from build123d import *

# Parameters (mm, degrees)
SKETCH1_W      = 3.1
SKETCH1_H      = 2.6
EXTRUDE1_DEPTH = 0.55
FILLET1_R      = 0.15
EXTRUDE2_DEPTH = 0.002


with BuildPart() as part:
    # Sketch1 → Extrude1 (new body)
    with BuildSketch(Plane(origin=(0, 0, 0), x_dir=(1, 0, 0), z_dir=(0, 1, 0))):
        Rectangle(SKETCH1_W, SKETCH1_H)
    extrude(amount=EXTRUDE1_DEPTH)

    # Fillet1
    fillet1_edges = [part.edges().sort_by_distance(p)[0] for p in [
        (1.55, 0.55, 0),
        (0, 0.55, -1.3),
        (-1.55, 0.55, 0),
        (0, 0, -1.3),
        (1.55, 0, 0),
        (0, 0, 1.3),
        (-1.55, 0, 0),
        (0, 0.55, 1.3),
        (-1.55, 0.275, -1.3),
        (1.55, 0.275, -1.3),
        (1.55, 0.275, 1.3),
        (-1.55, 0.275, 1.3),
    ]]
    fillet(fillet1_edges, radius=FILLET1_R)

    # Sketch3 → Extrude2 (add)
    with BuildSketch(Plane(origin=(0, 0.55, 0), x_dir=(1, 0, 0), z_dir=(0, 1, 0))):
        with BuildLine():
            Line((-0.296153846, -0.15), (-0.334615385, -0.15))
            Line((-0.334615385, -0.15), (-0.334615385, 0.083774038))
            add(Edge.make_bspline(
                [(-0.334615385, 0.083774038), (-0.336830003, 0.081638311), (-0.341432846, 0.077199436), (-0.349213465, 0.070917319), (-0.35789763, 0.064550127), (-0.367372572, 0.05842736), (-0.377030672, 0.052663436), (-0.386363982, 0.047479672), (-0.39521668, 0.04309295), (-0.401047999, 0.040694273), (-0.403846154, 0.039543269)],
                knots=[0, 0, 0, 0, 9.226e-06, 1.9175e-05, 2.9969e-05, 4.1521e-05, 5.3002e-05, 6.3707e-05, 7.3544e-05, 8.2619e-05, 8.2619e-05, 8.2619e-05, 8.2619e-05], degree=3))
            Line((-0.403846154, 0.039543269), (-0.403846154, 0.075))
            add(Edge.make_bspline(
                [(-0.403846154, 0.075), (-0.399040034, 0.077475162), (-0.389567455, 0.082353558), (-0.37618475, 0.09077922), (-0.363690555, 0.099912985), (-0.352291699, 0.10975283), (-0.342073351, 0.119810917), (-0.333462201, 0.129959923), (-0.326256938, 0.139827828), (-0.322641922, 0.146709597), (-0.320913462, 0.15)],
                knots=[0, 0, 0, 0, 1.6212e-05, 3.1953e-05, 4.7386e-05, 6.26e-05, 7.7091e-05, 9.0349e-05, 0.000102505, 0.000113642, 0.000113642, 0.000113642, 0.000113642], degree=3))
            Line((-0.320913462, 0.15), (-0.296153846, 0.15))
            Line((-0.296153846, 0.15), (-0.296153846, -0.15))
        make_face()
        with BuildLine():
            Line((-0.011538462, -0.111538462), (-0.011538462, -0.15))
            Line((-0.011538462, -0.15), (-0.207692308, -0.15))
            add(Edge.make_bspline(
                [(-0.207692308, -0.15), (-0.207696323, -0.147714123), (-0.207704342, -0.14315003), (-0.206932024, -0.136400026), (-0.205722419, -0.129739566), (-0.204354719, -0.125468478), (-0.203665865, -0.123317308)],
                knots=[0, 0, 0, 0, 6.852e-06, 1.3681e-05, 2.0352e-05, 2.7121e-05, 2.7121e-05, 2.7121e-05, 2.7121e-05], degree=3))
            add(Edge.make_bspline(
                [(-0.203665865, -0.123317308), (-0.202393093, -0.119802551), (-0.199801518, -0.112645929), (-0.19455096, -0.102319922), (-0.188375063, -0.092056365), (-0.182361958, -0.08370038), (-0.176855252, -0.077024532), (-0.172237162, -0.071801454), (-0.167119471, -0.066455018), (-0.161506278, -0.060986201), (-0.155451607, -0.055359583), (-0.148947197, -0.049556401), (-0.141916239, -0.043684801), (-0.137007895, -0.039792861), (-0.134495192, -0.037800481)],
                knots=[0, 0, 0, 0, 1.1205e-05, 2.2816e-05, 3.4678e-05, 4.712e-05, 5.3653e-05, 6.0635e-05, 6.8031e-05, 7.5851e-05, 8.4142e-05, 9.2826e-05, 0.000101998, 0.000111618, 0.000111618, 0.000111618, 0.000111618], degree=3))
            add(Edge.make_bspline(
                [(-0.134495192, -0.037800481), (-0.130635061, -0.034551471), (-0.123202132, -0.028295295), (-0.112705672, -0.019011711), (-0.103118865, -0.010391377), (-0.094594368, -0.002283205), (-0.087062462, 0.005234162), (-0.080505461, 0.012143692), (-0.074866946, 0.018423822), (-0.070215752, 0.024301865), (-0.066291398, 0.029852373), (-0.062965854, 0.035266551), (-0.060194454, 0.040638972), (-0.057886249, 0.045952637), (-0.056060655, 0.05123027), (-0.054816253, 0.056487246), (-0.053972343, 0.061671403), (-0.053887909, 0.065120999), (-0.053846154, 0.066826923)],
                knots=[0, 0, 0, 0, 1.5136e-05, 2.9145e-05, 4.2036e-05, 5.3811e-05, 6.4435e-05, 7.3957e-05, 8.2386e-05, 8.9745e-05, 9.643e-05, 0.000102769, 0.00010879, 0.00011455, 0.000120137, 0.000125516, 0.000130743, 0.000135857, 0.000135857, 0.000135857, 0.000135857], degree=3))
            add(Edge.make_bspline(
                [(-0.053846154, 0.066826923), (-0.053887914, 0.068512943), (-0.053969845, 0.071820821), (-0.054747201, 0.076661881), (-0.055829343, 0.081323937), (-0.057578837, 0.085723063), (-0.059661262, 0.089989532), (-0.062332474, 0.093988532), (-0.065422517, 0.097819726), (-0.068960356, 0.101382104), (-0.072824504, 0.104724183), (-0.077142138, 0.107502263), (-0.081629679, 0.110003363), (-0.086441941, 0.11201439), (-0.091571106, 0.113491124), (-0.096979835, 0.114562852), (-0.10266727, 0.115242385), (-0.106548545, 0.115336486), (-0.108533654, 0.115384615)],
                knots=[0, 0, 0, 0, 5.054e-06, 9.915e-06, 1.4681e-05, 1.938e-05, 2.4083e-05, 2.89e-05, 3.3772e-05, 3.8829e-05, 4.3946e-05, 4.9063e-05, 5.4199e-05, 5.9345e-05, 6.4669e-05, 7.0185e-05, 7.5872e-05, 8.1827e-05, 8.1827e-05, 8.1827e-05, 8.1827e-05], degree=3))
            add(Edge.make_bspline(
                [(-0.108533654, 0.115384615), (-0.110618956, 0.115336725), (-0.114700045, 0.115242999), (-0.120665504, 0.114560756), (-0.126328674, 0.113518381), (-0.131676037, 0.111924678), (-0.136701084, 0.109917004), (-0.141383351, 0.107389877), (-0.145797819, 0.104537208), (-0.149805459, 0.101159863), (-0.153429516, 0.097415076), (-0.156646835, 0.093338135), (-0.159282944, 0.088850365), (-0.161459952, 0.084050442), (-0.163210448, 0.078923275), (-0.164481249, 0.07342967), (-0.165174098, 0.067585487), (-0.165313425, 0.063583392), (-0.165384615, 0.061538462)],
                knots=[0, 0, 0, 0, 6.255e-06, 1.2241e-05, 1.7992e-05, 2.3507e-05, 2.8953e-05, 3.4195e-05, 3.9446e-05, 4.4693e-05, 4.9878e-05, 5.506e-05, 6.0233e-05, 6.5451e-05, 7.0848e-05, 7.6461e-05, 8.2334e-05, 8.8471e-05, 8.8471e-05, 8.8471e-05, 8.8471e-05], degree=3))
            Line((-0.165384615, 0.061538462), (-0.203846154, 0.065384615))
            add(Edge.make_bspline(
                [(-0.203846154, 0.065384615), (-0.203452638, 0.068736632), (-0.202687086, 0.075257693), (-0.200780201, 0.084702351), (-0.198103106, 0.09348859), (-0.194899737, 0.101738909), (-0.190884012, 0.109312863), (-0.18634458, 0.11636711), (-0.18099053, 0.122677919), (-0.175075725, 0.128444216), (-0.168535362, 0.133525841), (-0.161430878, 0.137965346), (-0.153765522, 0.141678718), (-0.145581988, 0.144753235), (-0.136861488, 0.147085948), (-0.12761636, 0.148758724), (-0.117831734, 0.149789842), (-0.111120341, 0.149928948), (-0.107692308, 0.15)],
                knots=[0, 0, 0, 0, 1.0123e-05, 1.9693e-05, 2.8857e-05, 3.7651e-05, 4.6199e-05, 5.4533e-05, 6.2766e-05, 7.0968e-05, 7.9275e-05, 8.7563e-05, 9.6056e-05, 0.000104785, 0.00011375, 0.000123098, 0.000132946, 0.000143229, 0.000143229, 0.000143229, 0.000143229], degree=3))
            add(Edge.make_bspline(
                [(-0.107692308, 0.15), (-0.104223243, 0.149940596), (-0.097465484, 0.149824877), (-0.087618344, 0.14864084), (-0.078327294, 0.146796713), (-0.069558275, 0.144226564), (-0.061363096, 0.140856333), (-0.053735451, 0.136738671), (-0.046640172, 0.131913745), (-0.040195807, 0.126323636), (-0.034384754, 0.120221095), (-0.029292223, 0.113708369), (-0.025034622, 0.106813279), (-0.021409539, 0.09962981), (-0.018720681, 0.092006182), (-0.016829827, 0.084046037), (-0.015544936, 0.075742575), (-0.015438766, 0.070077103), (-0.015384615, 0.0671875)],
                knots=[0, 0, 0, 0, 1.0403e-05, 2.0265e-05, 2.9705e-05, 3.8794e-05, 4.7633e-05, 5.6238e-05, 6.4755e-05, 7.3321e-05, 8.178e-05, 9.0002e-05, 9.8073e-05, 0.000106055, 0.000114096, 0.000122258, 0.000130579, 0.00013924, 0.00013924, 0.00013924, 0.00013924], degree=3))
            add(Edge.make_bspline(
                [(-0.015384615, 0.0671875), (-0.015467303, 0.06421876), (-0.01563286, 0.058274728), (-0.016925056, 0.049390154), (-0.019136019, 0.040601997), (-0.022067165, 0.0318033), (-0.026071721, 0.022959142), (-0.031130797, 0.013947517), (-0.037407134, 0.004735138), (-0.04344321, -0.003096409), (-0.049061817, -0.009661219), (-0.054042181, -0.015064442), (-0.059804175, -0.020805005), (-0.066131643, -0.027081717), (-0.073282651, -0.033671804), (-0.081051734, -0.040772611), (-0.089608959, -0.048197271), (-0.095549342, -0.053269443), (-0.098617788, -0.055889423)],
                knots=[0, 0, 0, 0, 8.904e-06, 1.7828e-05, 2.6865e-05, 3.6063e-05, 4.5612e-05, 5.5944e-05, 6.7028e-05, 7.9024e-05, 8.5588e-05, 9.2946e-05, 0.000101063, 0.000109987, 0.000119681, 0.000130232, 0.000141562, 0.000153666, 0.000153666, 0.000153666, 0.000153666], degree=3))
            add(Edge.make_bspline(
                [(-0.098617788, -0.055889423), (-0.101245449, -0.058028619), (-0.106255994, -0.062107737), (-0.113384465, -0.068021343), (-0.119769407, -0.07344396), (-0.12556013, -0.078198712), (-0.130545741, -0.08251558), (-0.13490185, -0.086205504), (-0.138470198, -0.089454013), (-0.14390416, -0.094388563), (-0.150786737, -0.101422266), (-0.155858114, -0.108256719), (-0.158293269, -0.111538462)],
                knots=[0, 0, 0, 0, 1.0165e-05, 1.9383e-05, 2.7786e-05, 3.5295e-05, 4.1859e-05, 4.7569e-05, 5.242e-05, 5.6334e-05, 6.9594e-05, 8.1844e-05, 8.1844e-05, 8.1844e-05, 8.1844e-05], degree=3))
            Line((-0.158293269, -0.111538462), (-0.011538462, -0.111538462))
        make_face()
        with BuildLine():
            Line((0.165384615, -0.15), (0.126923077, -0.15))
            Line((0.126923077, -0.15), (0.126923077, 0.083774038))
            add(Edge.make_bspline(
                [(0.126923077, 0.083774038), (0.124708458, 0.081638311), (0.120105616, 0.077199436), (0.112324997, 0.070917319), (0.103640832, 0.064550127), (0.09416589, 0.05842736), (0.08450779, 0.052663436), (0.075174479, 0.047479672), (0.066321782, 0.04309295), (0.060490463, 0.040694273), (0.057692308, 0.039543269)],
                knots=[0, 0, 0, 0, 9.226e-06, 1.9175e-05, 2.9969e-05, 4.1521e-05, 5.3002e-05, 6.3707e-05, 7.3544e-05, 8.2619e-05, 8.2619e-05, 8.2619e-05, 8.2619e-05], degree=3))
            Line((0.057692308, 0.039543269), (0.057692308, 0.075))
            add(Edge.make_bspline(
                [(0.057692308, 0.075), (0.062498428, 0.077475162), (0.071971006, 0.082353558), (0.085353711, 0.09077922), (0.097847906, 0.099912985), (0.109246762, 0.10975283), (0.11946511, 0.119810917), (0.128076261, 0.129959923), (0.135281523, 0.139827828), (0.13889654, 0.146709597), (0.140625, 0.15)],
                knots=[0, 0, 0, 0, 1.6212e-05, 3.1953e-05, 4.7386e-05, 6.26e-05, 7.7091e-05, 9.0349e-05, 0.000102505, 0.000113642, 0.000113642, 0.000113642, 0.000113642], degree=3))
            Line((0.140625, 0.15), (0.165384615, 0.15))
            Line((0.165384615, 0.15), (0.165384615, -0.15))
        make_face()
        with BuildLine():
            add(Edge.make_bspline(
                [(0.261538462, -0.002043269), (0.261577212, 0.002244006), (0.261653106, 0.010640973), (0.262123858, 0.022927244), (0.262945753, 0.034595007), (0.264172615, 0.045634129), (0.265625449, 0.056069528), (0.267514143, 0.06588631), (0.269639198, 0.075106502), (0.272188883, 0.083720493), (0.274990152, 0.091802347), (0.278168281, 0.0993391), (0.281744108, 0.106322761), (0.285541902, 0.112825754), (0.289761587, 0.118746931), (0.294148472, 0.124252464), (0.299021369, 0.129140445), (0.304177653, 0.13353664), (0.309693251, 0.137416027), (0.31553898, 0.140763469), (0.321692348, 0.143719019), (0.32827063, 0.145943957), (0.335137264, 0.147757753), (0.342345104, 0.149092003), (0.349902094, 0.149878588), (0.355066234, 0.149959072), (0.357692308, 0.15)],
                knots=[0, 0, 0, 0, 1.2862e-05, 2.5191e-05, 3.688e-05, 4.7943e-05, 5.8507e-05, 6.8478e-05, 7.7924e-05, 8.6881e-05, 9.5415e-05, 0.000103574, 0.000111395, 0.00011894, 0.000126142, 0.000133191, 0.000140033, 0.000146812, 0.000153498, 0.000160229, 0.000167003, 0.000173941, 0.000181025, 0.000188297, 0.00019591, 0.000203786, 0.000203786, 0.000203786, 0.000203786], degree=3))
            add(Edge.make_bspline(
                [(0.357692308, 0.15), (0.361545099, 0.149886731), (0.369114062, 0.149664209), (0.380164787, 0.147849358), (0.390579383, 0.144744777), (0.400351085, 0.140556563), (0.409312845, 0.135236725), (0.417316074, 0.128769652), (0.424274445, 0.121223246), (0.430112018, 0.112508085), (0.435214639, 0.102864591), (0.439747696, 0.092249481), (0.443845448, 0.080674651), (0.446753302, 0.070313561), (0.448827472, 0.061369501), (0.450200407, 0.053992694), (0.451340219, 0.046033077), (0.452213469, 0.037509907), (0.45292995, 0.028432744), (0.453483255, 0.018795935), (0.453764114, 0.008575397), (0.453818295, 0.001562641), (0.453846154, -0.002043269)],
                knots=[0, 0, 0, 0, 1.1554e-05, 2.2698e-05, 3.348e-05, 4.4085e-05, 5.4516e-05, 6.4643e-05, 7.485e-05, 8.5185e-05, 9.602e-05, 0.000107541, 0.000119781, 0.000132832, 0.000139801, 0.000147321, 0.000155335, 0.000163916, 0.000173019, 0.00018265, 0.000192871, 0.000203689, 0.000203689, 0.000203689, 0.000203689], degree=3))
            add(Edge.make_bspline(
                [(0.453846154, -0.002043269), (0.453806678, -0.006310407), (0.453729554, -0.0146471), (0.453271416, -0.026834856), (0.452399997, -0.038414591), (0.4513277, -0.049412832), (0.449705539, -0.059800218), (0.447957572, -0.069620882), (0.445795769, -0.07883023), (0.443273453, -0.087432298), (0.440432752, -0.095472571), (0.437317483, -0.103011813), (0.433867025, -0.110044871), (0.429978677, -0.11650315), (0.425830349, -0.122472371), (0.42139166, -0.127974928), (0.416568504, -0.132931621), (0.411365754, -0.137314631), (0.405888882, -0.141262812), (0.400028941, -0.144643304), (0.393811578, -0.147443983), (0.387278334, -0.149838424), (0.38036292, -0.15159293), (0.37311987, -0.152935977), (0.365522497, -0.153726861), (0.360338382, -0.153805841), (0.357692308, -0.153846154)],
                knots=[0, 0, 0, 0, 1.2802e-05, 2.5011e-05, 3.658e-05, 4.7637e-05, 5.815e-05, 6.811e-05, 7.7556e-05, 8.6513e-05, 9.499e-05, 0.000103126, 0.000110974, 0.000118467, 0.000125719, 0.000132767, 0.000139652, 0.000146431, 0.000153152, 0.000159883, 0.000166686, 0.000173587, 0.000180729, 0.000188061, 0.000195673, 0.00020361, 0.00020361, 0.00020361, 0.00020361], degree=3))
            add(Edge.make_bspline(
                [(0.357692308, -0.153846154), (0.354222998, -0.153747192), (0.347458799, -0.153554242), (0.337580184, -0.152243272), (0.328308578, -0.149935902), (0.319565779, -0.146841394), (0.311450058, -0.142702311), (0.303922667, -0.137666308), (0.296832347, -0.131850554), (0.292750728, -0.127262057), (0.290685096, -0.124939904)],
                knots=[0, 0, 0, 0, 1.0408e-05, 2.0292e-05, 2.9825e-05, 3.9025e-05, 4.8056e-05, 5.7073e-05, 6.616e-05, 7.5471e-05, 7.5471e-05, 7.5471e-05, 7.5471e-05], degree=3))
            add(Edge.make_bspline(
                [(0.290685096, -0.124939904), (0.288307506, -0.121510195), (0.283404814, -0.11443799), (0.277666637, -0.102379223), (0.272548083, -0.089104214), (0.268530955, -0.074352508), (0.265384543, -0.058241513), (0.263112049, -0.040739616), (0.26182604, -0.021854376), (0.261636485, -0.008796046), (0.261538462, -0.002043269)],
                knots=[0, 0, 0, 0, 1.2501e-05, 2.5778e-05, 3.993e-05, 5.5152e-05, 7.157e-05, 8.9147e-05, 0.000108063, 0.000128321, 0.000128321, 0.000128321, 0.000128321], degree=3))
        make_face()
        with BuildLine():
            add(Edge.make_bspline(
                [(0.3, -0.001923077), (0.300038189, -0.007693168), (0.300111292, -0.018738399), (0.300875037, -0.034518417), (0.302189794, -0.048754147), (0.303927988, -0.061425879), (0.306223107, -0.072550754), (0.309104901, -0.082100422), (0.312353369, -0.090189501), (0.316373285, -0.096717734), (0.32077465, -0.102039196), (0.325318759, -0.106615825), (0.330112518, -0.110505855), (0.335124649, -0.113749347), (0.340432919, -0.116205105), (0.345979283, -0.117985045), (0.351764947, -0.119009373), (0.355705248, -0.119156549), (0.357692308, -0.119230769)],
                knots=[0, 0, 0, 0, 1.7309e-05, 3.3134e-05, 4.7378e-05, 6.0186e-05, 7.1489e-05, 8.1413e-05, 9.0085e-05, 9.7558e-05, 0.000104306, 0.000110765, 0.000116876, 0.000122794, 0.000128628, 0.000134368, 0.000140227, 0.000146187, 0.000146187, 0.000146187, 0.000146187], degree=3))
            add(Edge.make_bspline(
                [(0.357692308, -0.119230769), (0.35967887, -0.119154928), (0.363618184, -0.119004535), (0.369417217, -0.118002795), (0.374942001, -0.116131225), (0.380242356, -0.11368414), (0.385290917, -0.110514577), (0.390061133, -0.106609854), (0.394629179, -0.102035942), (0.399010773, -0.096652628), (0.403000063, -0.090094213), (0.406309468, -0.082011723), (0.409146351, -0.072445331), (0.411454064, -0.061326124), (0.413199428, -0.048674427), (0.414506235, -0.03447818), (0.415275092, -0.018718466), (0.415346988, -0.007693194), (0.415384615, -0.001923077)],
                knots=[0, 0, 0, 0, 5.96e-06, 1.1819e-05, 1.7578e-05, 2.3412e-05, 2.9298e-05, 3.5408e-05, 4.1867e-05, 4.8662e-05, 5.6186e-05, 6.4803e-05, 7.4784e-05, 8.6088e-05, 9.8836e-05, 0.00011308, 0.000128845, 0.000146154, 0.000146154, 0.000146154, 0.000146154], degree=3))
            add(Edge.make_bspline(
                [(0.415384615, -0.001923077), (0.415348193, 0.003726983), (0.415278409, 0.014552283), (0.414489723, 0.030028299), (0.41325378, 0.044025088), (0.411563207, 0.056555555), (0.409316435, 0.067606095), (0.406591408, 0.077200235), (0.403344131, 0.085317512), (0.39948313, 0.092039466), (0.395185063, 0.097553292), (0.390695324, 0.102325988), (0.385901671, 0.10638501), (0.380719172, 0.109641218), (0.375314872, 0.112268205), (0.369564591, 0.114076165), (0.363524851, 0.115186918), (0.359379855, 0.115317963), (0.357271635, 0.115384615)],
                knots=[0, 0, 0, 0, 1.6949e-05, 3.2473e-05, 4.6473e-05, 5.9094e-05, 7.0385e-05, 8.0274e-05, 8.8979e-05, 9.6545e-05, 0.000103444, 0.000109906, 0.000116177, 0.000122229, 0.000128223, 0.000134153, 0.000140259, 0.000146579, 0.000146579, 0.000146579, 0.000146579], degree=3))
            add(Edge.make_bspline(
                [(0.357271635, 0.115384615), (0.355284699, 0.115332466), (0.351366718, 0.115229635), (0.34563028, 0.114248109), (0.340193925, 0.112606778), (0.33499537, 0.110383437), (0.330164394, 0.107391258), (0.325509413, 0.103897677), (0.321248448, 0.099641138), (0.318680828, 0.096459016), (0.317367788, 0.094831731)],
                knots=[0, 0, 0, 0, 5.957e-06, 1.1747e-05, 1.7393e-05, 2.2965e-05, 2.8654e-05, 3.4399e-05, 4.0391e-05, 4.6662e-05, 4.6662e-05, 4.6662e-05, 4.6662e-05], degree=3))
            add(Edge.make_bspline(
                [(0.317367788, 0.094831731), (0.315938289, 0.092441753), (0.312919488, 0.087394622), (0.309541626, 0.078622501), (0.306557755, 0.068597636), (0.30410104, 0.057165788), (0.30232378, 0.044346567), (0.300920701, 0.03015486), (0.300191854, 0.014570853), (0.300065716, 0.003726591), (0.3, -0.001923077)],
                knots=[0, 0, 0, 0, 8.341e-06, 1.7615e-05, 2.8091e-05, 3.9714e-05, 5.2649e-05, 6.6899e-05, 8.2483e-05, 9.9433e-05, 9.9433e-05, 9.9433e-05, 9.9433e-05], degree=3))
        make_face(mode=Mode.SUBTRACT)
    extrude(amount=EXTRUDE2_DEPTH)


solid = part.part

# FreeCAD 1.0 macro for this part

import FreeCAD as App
import Part
import Sketcher
from FreeCAD import Vector

doc = App.newDocument("Part")
body = doc.addObject("PartDesign::Body", "Body")

sketch1 = body.newObject("Sketcher::SketchObject", "Sketch")
sketch1.AttachmentSupport = (doc.getObject("XZ_Plane"), [""])
sketch1.MapMode = "FlatFace"
sketch1.addGeometry(Part.LineSegment(Vector(-1.6, -1.3, 0), Vector(-1.6, 1.3, 0)), False)
sketch1.addGeometry(Part.LineSegment(Vector(-1.6, 1.3, 0), Vector(1.6, 1.3, 0)), False)
sketch1.addGeometry(Part.LineSegment(Vector(1.6, 1.3, 0), Vector(1.6, -1.3, 0)), False)
sketch1.addGeometry(Part.LineSegment(Vector(1.6, -1.3, 0), Vector(-1.6, -1.3, 0)), False)
sketch1.addConstraint(Sketcher.Constraint("Coincident", 0, 2, 1, 1))
sketch1.addConstraint(Sketcher.Constraint("Coincident", 1, 2, 2, 1))
sketch1.addConstraint(Sketcher.Constraint("Coincident", 2, 2, 3, 1))
sketch1.addConstraint(Sketcher.Constraint("Coincident", 3, 2, 0, 1))
sketch1.addConstraint(Sketcher.Constraint("Vertical", 0))
sketch1.addConstraint(Sketcher.Constraint("Horizontal", 1))
sketch1.addConstraint(Sketcher.Constraint("Vertical", 2))
sketch1.addConstraint(Sketcher.Constraint("Horizontal", 3))
sketch1.addConstraint(Sketcher.Constraint("Symmetric", 0, 2, 2, 2, -1, 1))
sketch1.addConstraint(Sketcher.Constraint("DistanceX", 1, 1, 1, 2, 3.1))
sketch1.addConstraint(Sketcher.Constraint("DistanceY", 0, 1, 0, 2, 2.6))
pad1 = body.newObject("PartDesign::Pad", "Pad")
pad1.Profile = sketch1
pad1.Length = 0.55
pad1.Reversed = True
doc.recompute()

fillet = body.newObject("PartDesign::Fillet", "Fillet")
fillet.Base = (pad1, ["Edge1"])
fillet.UseAllEdges = True
fillet.Radius = 0.15

sketch2 = body.newObject("Sketcher::SketchObject", "Sketch001")
sketch2.AttachmentSupport = (doc.getObject("XZ_Plane"), [""])
sketch2.MapMode = "FlatFace"
sketch2.AttachmentOffset = App.Placement(Vector(0, 0, -0.55), App.Rotation())
sketch2.addGeometry(Part.LineSegment(Vector(-0.334615, 0.15, 0), Vector(-0.296154, 0.15, 0)), False)
sketch2.addGeometry(Part.LineSegment(Vector(-0.296154, 0.15, 0), Vector(-0.296154, -0.15, 0)), False)
sketch2.addGeometry(Part.LineSegment(Vector(-0.296154, -0.15, 0), Vector(-0.320913, -0.15, 0)), False)
sketch2.addGeometry(Part.BSplineCurve([Vector(-0.403846, -0.075, 0), Vector(-0.39904, -0.077475, 0), Vector(-0.389567, -0.082354, 0), Vector(-0.376185, -0.090779, 0), Vector(-0.363691, -0.099913, 0), Vector(-0.352292, -0.109753, 0), Vector(-0.342073, -0.119811, 0), Vector(-0.333462, -0.12996, 0), Vector(-0.326257, -0.139828, 0), Vector(-0.322642, -0.14671, 0), Vector(-0.320913, -0.15, 0)], [4, 1, 1, 1, 1, 1, 1, 1, 4], [0, 0.000016212, 0.000031953, 0.000047386, 0.0000626, 0.000077091, 0.000090349, 0.000102505, 0.000113642], False, 3, [1, 1, 1, 1, 1, 1, 1, 1, 1, 1, 1], False), False)
sketch2.addGeometry(Part.LineSegment(Vector(-0.403846, -0.075, 0), Vector(-0.403846, -0.039543, 0)), False)
sketch2.addGeometry(Part.BSplineCurve([Vector(-0.334615, -0.083774, 0), Vector(-0.33683, -0.081638, 0), Vector(-0.341433, -0.077199, 0), Vector(-0.349213, -0.070917, 0), Vector(-0.357898, -0.06455, 0), Vector(-0.367373, -0.058427, 0), Vector(-0.377031, -0.052663, 0), Vector(-0.386364, -0.04748, 0), Vector(-0.395217, -0.043093, 0), Vector(-0.401048, -0.040694, 0), Vector(-0.403846, -0.039543, 0)], [4, 1, 1, 1, 1, 1, 1, 1, 4], [0, 0.000009226, 0.000019175, 0.000029969, 0.000041521, 0.000053002, 0.000063707, 0.000073544, 0.000082619], False, 3, [1, 1, 1, 1, 1, 1, 1, 1, 1, 1, 1], False), False)
sketch2.addGeometry(Part.LineSegment(Vector(-0.334615, -0.083774, 0), Vector(-0.334615, 0.15, 0)), False)
sketch2.addGeometry(Part.LineSegment(Vector(-0.011538, 0.15, 0), Vector(-0.011538, 0.111538, 0)), False)
sketch2.addGeometry(Part.LineSegment(Vector(-0.011538, 0.111538, 0), Vector(-0.158293, 0.111538, 0)), False)
sketch2.addGeometry(Part.BSplineCurve([Vector(-0.098618, 0.055889, 0), Vector(-0.101245, 0.058029, 0), Vector(-0.106256, 0.062108, 0), Vector(-0.113384, 0.068021, 0), Vector(-0.119769, 0.073444, 0), Vector(-0.12556, 0.078199, 0), Vector(-0.130546, 0.082516, 0), Vector(-0.134902, 0.086206, 0), Vector(-0.13847, 0.089454, 0), Vector(-0.143904, 0.094389, 0), Vector(-0.150787, 0.101422, 0), Vector(-0.155858, 0.108257, 0), Vector(-0.158293, 0.111538, 0)], [4, 1, 1, 1, 1, 1, 1, 1, 1, 1, 4], [0, 0.000010165, 0.000019383, 0.000027786, 0.000035295, 0.000041859, 0.000047569, 0.00005242, 0.000056334, 0.000069594, 0.000081844], False, 3, [1, 1, 1, 1, 1, 1, 1, 1, 1, 1, 1, 1, 1], False), False)
sketch2.addGeometry(Part.BSplineCurve([Vector(-0.015385, -0.067187, 0), Vector(-0.015467, -0.064219, 0), Vector(-0.015633, -0.058275, 0), Vector(-0.016925, -0.04939, 0), Vector(-0.019136, -0.040602, 0), Vector(-0.022067, -0.031803, 0), Vector(-0.026072, -0.022959, 0), Vector(-0.031131, -0.013948, 0), Vector(-0.037407, -0.004735, 0), Vector(-0.043443, 0.003096, 0), Vector(-0.049062, 0.009661, 0), Vector(-0.054042, 0.015064, 0), Vector(-0.059804, 0.020805, 0), Vector(-0.066132, 0.027082, 0), Vector(-0.073283, 0.033672, 0), Vector(-0.081052, 0.040773, 0), Vector(-0.089609, 0.048197, 0), Vector(-0.095549, 0.053269, 0), Vector(-0.098618, 0.055889, 0)], [4, 1, 1, 1, 1, 1, 1, 1, 1, 1, 1, 1, 1, 1, 1, 1, 4], [0, 0.000008904, 0.000017828, 0.000026865, 0.000036063, 0.000045612, 0.000055944, 0.000067028, 0.000079024, 0.000085588, 0.000092946, 0.000101063, 0.000109987, 0.000119681, 0.000130232, 0.000141562, 0.000153666], False, 3, [1, 1, 1, 1, 1, 1, 1, 1, 1, 1, 1, 1, 1, 1, 1, 1, 1, 1, 1], False), False)
sketch2.addGeometry(Part.BSplineCurve([Vector(-0.107692, -0.15, 0), Vector(-0.104223, -0.149941, 0), Vector(-0.097465, -0.149825, 0), Vector(-0.087618, -0.148641, 0), Vector(-0.078327, -0.146797, 0), Vector(-0.069558, -0.144227, 0), Vector(-0.061363, -0.140856, 0), Vector(-0.053735, -0.136739, 0), Vector(-0.04664, -0.131914, 0), Vector(-0.040196, -0.126324, 0), Vector(-0.034385, -0.120221, 0), Vector(-0.029292, -0.113708, 0), Vector(-0.025035, -0.106813, 0), Vector(-0.02141, -0.09963, 0), Vector(-0.018721, -0.092006, 0), Vector(-0.01683, -0.084046, 0), Vector(-0.015545, -0.075743, 0), Vector(-0.015439, -0.070077, 0), Vector(-0.015385, -0.067187, 0)], [4, 1, 1, 1, 1, 1, 1, 1, 1, 1, 1, 1, 1, 1, 1, 1, 4], [0, 0.000010403, 0.000020265, 0.000029705, 0.000038794, 0.000047633, 0.000056238, 0.000064755, 0.000073321, 0.00008178, 0.000090002, 0.000098073, 0.000106055, 0.000114096, 0.000122258, 0.000130579, 0.00013924], False, 3, [1, 1, 1, 1, 1, 1, 1, 1, 1, 1, 1, 1, 1, 1, 1, 1, 1, 1, 1], False), False)
sketch2.addGeometry(Part.BSplineCurve([Vector(-0.203846, -0.065385, 0), Vector(-0.203453, -0.068737, 0), Vector(-0.202687, -0.075258, 0), Vector(-0.20078, -0.084702, 0), Vector(-0.198103, -0.093489, 0), Vector(-0.1949, -0.101739, 0), Vector(-0.190884, -0.109313, 0), Vector(-0.186345, -0.116367, 0), Vector(-0.180991, -0.122678, 0), Vector(-0.175076, -0.128444, 0), Vector(-0.168535, -0.133526, 0), Vector(-0.161431, -0.137965, 0), Vector(-0.153766, -0.141679, 0), Vector(-0.145582, -0.144753, 0), Vector(-0.136861, -0.147086, 0), Vector(-0.127616, -0.148759, 0), Vector(-0.117832, -0.14979, 0), Vector(-0.11112, -0.149929, 0), Vector(-0.107692, -0.15, 0)], [4, 1, 1, 1, 1, 1, 1, 1, 1, 1, 1, 1, 1, 1, 1, 1, 4], [0, 0.000010123, 0.000019693, 0.000028857, 0.000037651, 0.000046199, 0.000054533, 0.000062766, 0.000070968, 0.000079275, 0.000087563, 0.000096056, 0.000104785, 0.00011375, 0.000123098, 0.000132946, 0.000143229], False, 3, [1, 1, 1, 1, 1, 1, 1, 1, 1, 1, 1, 1, 1, 1, 1, 1, 1, 1, 1], False), False)
sketch2.addGeometry(Part.LineSegment(Vector(-0.203846, -0.065385, 0), Vector(-0.165385, -0.061538, 0)), False)
sketch2.addGeometry(Part.BSplineCurve([Vector(-0.108534, -0.115385, 0), Vector(-0.110619, -0.115337, 0), Vector(-0.1147, -0.115243, 0), Vector(-0.120666, -0.114561, 0), Vector(-0.126329, -0.113518, 0), Vector(-0.131676, -0.111925, 0), Vector(-0.136701, -0.109917, 0), Vector(-0.141383, -0.10739, 0), Vector(-0.145798, -0.104537, 0), Vector(-0.149805, -0.10116, 0), Vector(-0.15343, -0.097415, 0), Vector(-0.156647, -0.093338, 0), Vector(-0.159283, -0.08885, 0), Vector(-0.16146, -0.08405, 0), Vector(-0.16321, -0.078923, 0), Vector(-0.164481, -0.07343, 0), Vector(-0.165174, -0.067585, 0), Vector(-0.165313, -0.063583, 0), Vector(-0.165385, -0.061538, 0)], [4, 1, 1, 1, 1, 1, 1, 1, 1, 1, 1, 1, 1, 1, 1, 1, 4], [0, 0.000006255, 0.000012241, 0.000017992, 0.000023507, 0.000028953, 0.000034195, 0.000039446, 0.000044693, 0.000049878, 0.00005506, 0.000060233, 0.000065451, 0.000070848, 0.000076461, 0.000082334, 0.000088471], False, 3, [1, 1, 1, 1, 1, 1, 1, 1, 1, 1, 1, 1, 1, 1, 1, 1, 1, 1, 1], False), False)
sketch2.addGeometry(Part.BSplineCurve([Vector(-0.053846, -0.066827, 0), Vector(-0.053888, -0.068513, 0), Vector(-0.05397, -0.071821, 0), Vector(-0.054747, -0.076662, 0), Vector(-0.055829, -0.081324, 0), Vector(-0.057579, -0.085723, 0), Vector(-0.059661, -0.08999, 0), Vector(-0.062332, -0.093989, 0), Vector(-0.065423, -0.09782, 0), Vector(-0.06896, -0.101382, 0), Vector(-0.072825, -0.104724, 0), Vector(-0.077142, -0.107502, 0), Vector(-0.08163, -0.110003, 0), Vector(-0.086442, -0.112014, 0), Vector(-0.091571, -0.113491, 0), Vector(-0.09698, -0.114563, 0), Vector(-0.102667, -0.115242, 0), Vector(-0.106549, -0.115336, 0), Vector(-0.108534, -0.115385, 0)], [4, 1, 1, 1, 1, 1, 1, 1, 1, 1, 1, 1, 1, 1, 1, 1, 4], [0, 0.000005054, 0.000009915, 0.000014681, 0.00001938, 0.000024083, 0.0000289, 0.000033772, 0.000038829, 0.000043946, 0.000049063, 0.000054199, 0.000059345, 0.000064669, 0.000070185, 0.000075872, 0.000081827], False, 3, [1, 1, 1, 1, 1, 1, 1, 1, 1, 1, 1, 1, 1, 1, 1, 1, 1, 1, 1], False), False)
sketch2.addGeometry(Part.BSplineCurve([Vector(-0.134495, 0.0378, 0), Vector(-0.130635, 0.034551, 0), Vector(-0.123202, 0.028295, 0), Vector(-0.112706, 0.019012, 0), Vector(-0.103119, 0.010391, 0), Vector(-0.094594, 0.002283, 0), Vector(-0.087062, -0.005234, 0), Vector(-0.080505, -0.012144, 0), Vector(-0.074867, -0.018424, 0), Vector(-0.070216, -0.024302, 0), Vector(-0.066291, -0.029852, 0), Vector(-0.062966, -0.035267, 0), Vector(-0.060194, -0.040639, 0), Vector(-0.057886, -0.045953, 0), Vector(-0.056061, -0.05123, 0), Vector(-0.054816, -0.056487, 0), Vector(-0.053972, -0.061671, 0), Vector(-0.053888, -0.065121, 0), Vector(-0.053846, -0.066827, 0)], [4, 1, 1, 1, 1, 1, 1, 1, 1, 1, 1, 1, 1, 1, 1, 1, 4], [0, 0.000015136, 0.000029145, 0.000042036, 0.000053811, 0.000064435, 0.000073957, 0.000082386, 0.000089745, 0.00009643, 0.000102769, 0.00010879, 0.00011455, 0.000120137, 0.000125516, 0.000130743, 0.000135857], False, 3, [1, 1, 1, 1, 1, 1, 1, 1, 1, 1, 1, 1, 1, 1, 1, 1, 1, 1, 1], False), False)
sketch2.addGeometry(Part.BSplineCurve([Vector(-0.203666, 0.123317, 0), Vector(-0.202393, 0.119803, 0), Vector(-0.199802, 0.112646, 0), Vector(-0.194551, 0.10232, 0), Vector(-0.188375, 0.092056, 0), Vector(-0.182362, 0.0837, 0), Vector(-0.176855, 0.077025, 0), Vector(-0.172237, 0.071801, 0), Vector(-0.167119, 0.066455, 0), Vector(-0.161506, 0.060986, 0), Vector(-0.155452, 0.05536, 0), Vector(-0.148947, 0.049556, 0), Vector(-0.141916, 0.043685, 0), Vector(-0.137008, 0.039793, 0), Vector(-0.134495, 0.0378, 0)], [4, 1, 1, 1, 1, 1, 1, 1, 1, 1, 1, 1, 4], [0, 0.000011205, 0.000022816, 0.000034678, 0.00004712, 0.000053653, 0.000060635, 0.000068031, 0.000075851, 0.000084142, 0.000092826, 0.000101998, 0.000111618], False, 3, [1, 1, 1, 1, 1, 1, 1, 1, 1, 1, 1, 1, 1, 1, 1], False), False)
sketch2.addGeometry(Part.BSplineCurve([Vector(-0.207692, 0.15, 0), Vector(-0.207696, 0.147714, 0), Vector(-0.207704, 0.14315, 0), Vector(-0.206932, 0.1364, 0), Vector(-0.205722, 0.12974, 0), Vector(-0.204355, 0.125468, 0), Vector(-0.203666, 0.123317, 0)], [4, 1, 1, 1, 4], [0, 0.000006852, 0.000013681, 0.000020352, 0.000027121], False, 3, [1, 1, 1, 1, 1, 1, 1], False), False)
sketch2.addGeometry(Part.LineSegment(Vector(-0.207692, 0.15, 0), Vector(-0.011538, 0.15, 0)), False)
sketch2.addGeometry(Part.LineSegment(Vector(0.126923, 0.15, 0), Vector(0.165385, 0.15, 0)), False)
sketch2.addGeometry(Part.LineSegment(Vector(0.165385, 0.15, 0), Vector(0.165385, -0.15, 0)), False)
sketch2.addGeometry(Part.LineSegment(Vector(0.165385, -0.15, 0), Vector(0.140625, -0.15, 0)), False)
sketch2.addGeometry(Part.BSplineCurve([Vector(0.057692, -0.075, 0), Vector(0.062498, -0.077475, 0), Vector(0.071971, -0.082354, 0), Vector(0.085354, -0.090779, 0), Vector(0.097848, -0.099913, 0), Vector(0.109247, -0.109753, 0), Vector(0.119465, -0.119811, 0), Vector(0.128076, -0.12996, 0), Vector(0.135282, -0.139828, 0), Vector(0.138897, -0.14671, 0), Vector(0.140625, -0.15, 0)], [4, 1, 1, 1, 1, 1, 1, 1, 4], [0, 0.000016212, 0.000031953, 0.000047386, 0.0000626, 0.000077091, 0.000090349, 0.000102505, 0.000113642], False, 3, [1, 1, 1, 1, 1, 1, 1, 1, 1, 1, 1], False), False)
sketch2.addGeometry(Part.LineSegment(Vector(0.057692, -0.075, 0), Vector(0.057692, -0.039543, 0)), False)
sketch2.addGeometry(Part.BSplineCurve([Vector(0.126923, -0.083774, 0), Vector(0.124708, -0.081638, 0), Vector(0.120106, -0.077199, 0), Vector(0.112325, -0.070917, 0), Vector(0.103641, -0.06455, 0), Vector(0.094166, -0.058427, 0), Vector(0.084508, -0.052663, 0), Vector(0.075174, -0.04748, 0), Vector(0.066322, -0.043093, 0), Vector(0.06049, -0.040694, 0), Vector(0.057692, -0.039543, 0)], [4, 1, 1, 1, 1, 1, 1, 1, 4], [0, 0.000009226, 0.000019175, 0.000029969, 0.000041521, 0.000053002, 0.000063707, 0.000073544, 0.000082619], False, 3, [1, 1, 1, 1, 1, 1, 1, 1, 1, 1, 1], False), False)
sketch2.addGeometry(Part.LineSegment(Vector(0.126923, -0.083774, 0), Vector(0.126923, 0.15, 0)), False)
sketch2.addGeometry(Part.BSplineCurve([Vector(0.261538, 0.002043, 0), Vector(0.261577, -0.002244, 0), Vector(0.261653, -0.010641, 0), Vector(0.262124, -0.022927, 0), Vector(0.262946, -0.034595, 0), Vector(0.264173, -0.045634, 0), Vector(0.265625, -0.05607, 0), Vector(0.267514, -0.065886, 0), Vector(0.269639, -0.075107, 0), Vector(0.272189, -0.08372, 0), Vector(0.27499, -0.091802, 0), Vector(0.278168, -0.099339, 0), Vector(0.281744, -0.106323, 0), Vector(0.285542, -0.112826, 0), Vector(0.289762, -0.118747, 0), Vector(0.294148, -0.124252, 0), Vector(0.299021, -0.12914, 0), Vector(0.304178, -0.133537, 0), Vector(0.309693, -0.137416, 0), Vector(0.315539, -0.140763, 0), Vector(0.321692, -0.143719, 0), Vector(0.328271, -0.145944, 0), Vector(0.335137, -0.147758, 0), Vector(0.342345, -0.149092, 0), Vector(0.349902, -0.149879, 0), Vector(0.355066, -0.149959, 0), Vector(0.357692, -0.15, 0)], [4, 1, 1, 1, 1, 1, 1, 1, 1, 1, 1, 1, 1, 1, 1, 1, 1, 1, 1, 1, 1, 1, 1, 1, 4], [0, 0.000012862, 0.000025191, 0.00003688, 0.000047943, 0.000058507, 0.000068478, 0.000077924, 0.000086881, 0.000095415, 0.000103574, 0.000111395, 0.00011894, 0.000126142, 0.000133191, 0.000140033, 0.000146812, 0.000153498, 0.000160229, 0.000167003, 0.000173941, 0.000181025, 0.000188297, 0.00019591, 0.000203786], False, 3, [1, 1, 1, 1, 1, 1, 1, 1, 1, 1, 1, 1, 1, 1, 1, 1, 1, 1, 1, 1, 1, 1, 1, 1, 1, 1, 1], False), False)
sketch2.addGeometry(Part.BSplineCurve([Vector(0.290685, 0.12494, 0), Vector(0.288308, 0.12151, 0), Vector(0.283405, 0.114438, 0), Vector(0.277667, 0.102379, 0), Vector(0.272548, 0.089104, 0), Vector(0.268531, 0.074353, 0), Vector(0.265385, 0.058242, 0), Vector(0.263112, 0.04074, 0), Vector(0.261826, 0.021854, 0), Vector(0.261636, 0.008796, 0), Vector(0.261538, 0.002043, 0)], [4, 1, 1, 1, 1, 1, 1, 1, 4], [0, 0.000012501, 0.000025778, 0.00003993, 0.000055152, 0.00007157, 0.000089147, 0.000108063, 0.000128321], False, 3, [1, 1, 1, 1, 1, 1, 1, 1, 1, 1, 1], False), False)
sketch2.addGeometry(Part.BSplineCurve([Vector(0.357692, 0.153846, 0), Vector(0.354223, 0.153747, 0), Vector(0.347459, 0.153554, 0), Vector(0.33758, 0.152243, 0), Vector(0.328309, 0.149936, 0), Vector(0.319566, 0.146841, 0), Vector(0.31145, 0.142702, 0), Vector(0.303923, 0.137666, 0), Vector(0.296832, 0.131851, 0), Vector(0.292751, 0.127262, 0), Vector(0.290685, 0.12494, 0)], [4, 1, 1, 1, 1, 1, 1, 1, 4], [0, 0.000010408, 0.000020292, 0.000029825, 0.000039025, 0.000048056, 0.000057073, 0.00006616, 0.000075471], False, 3, [1, 1, 1, 1, 1, 1, 1, 1, 1, 1, 1], False), False)
sketch2.addGeometry(Part.BSplineCurve([Vector(0.453846, 0.002043, 0), Vector(0.453807, 0.00631, 0), Vector(0.45373, 0.014647, 0), Vector(0.453271, 0.026835, 0), Vector(0.4524, 0.038415, 0), Vector(0.451328, 0.049413, 0), Vector(0.449706, 0.0598, 0), Vector(0.447958, 0.069621, 0), Vector(0.445796, 0.07883, 0), Vector(0.443273, 0.087432, 0), Vector(0.440433, 0.095473, 0), Vector(0.437317, 0.103012, 0), Vector(0.433867, 0.110045, 0), Vector(0.429979, 0.116503, 0), Vector(0.42583, 0.122472, 0), Vector(0.421392, 0.127975, 0), Vector(0.416569, 0.132932, 0), Vector(0.411366, 0.137315, 0), Vector(0.405889, 0.141263, 0), Vector(0.400029, 0.144643, 0), Vector(0.393812, 0.147444, 0), Vector(0.387278, 0.149838, 0), Vector(0.380363, 0.151593, 0), Vector(0.37312, 0.152936, 0), Vector(0.365522, 0.153727, 0), Vector(0.360338, 0.153806, 0), Vector(0.357692, 0.153846, 0)], [4, 1, 1, 1, 1, 1, 1, 1, 1, 1, 1, 1, 1, 1, 1, 1, 1, 1, 1, 1, 1, 1, 1, 1, 4], [0, 0.000012802, 0.000025011, 0.00003658, 0.000047637, 0.00005815, 0.00006811, 0.000077556, 0.000086513, 0.00009499, 0.000103126, 0.000110974, 0.000118467, 0.000125719, 0.000132767, 0.000139652, 0.000146431, 0.000153152, 0.000159883, 0.000166686, 0.000173587, 0.000180729, 0.000188061, 0.000195673, 0.00020361], False, 3, [1, 1, 1, 1, 1, 1, 1, 1, 1, 1, 1, 1, 1, 1, 1, 1, 1, 1, 1, 1, 1, 1, 1, 1, 1, 1, 1], False), False)
sketch2.addGeometry(Part.BSplineCurve([Vector(0.357692, -0.15, 0), Vector(0.361545, -0.149887, 0), Vector(0.369114, -0.149664, 0), Vector(0.380165, -0.147849, 0), Vector(0.390579, -0.144745, 0), Vector(0.400351, -0.140557, 0), Vector(0.409313, -0.135237, 0), Vector(0.417316, -0.12877, 0), Vector(0.424274, -0.121223, 0), Vector(0.430112, -0.112508, 0), Vector(0.435215, -0.102865, 0), Vector(0.439748, -0.092249, 0), Vector(0.443845, -0.080675, 0), Vector(0.446753, -0.070314, 0), Vector(0.448827, -0.06137, 0), Vector(0.4502, -0.053993, 0), Vector(0.45134, -0.046033, 0), Vector(0.452213, -0.03751, 0), Vector(0.45293, -0.028433, 0), Vector(0.453483, -0.018796, 0), Vector(0.453764, -0.008575, 0), Vector(0.453818, -0.001563, 0), Vector(0.453846, 0.002043, 0)], [4, 1, 1, 1, 1, 1, 1, 1, 1, 1, 1, 1, 1, 1, 1, 1, 1, 1, 1, 1, 4], [0, 0.000011554, 0.000022698, 0.00003348, 0.000044085, 0.000054516, 0.000064643, 0.00007485, 0.000085185, 0.00009602, 0.000107541, 0.000119781, 0.000132832, 0.000139801, 0.000147321, 0.000155335, 0.000163916, 0.000173019, 0.00018265, 0.000192871, 0.000203689], False, 3, [1, 1, 1, 1, 1, 1, 1, 1, 1, 1, 1, 1, 1, 1, 1, 1, 1, 1, 1, 1, 1, 1, 1], False), False)
sketch2.addGeometry(Part.BSplineCurve([Vector(0.317368, -0.094832, 0), Vector(0.315938, -0.092442, 0), Vector(0.312919, -0.087395, 0), Vector(0.309542, -0.078623, 0), Vector(0.306558, -0.068598, 0), Vector(0.304101, -0.057166, 0), Vector(0.302324, -0.044347, 0), Vector(0.300921, -0.030155, 0), Vector(0.300192, -0.014571, 0), Vector(0.300066, -0.003727, 0), Vector(0.3, 0.001923, 0)], [4, 1, 1, 1, 1, 1, 1, 1, 4], [0, 0.000008341, 0.000017615, 0.000028091, 0.000039714, 0.000052649, 0.000066899, 0.000082483, 0.000099433], False, 3, [1, 1, 1, 1, 1, 1, 1, 1, 1, 1, 1], False), False)
sketch2.addGeometry(Part.BSplineCurve([Vector(0.357272, -0.115385, 0), Vector(0.355285, -0.115332, 0), Vector(0.351367, -0.11523, 0), Vector(0.34563, -0.114248, 0), Vector(0.340194, -0.112607, 0), Vector(0.334995, -0.110383, 0), Vector(0.330164, -0.107391, 0), Vector(0.325509, -0.103898, 0), Vector(0.321248, -0.099641, 0), Vector(0.318681, -0.096459, 0), Vector(0.317368, -0.094832, 0)], [4, 1, 1, 1, 1, 1, 1, 1, 4], [0, 0.000005957, 0.000011747, 0.000017393, 0.000022965, 0.000028654, 0.000034399, 0.000040391, 0.000046662], False, 3, [1, 1, 1, 1, 1, 1, 1, 1, 1, 1, 1], False), False)
sketch2.addGeometry(Part.BSplineCurve([Vector(0.415385, 0.001923, 0), Vector(0.415348, -0.003727, 0), Vector(0.415278, -0.014552, 0), Vector(0.41449, -0.030028, 0), Vector(0.413254, -0.044025, 0), Vector(0.411563, -0.056556, 0), Vector(0.409316, -0.067606, 0), Vector(0.406591, -0.0772, 0), Vector(0.403344, -0.085318, 0), Vector(0.399483, -0.092039, 0), Vector(0.395185, -0.097553, 0), Vector(0.390695, -0.102326, 0), Vector(0.385902, -0.106385, 0), Vector(0.380719, -0.109641, 0), Vector(0.375315, -0.112268, 0), Vector(0.369565, -0.114076, 0), Vector(0.363525, -0.115187, 0), Vector(0.35938, -0.115318, 0), Vector(0.357272, -0.115385, 0)], [4, 1, 1, 1, 1, 1, 1, 1, 1, 1, 1, 1, 1, 1, 1, 1, 4], [0, 0.000016949, 0.000032473, 0.000046473, 0.000059094, 0.000070385, 0.000080274, 0.000088979, 0.000096545, 0.000103444, 0.000109906, 0.000116177, 0.000122229, 0.000128223, 0.000134153, 0.000140259, 0.000146579], False, 3, [1, 1, 1, 1, 1, 1, 1, 1, 1, 1, 1, 1, 1, 1, 1, 1, 1, 1, 1], False), False)
sketch2.addGeometry(Part.BSplineCurve([Vector(0.357692, 0.119231, 0), Vector(0.359679, 0.119155, 0), Vector(0.363618, 0.119005, 0), Vector(0.369417, 0.118003, 0), Vector(0.374942, 0.116131, 0), Vector(0.380242, 0.113684, 0), Vector(0.385291, 0.110515, 0), Vector(0.390061, 0.10661, 0), Vector(0.394629, 0.102036, 0), Vector(0.399011, 0.096653, 0), Vector(0.403, 0.090094, 0), Vector(0.406309, 0.082012, 0), Vector(0.409146, 0.072445, 0), Vector(0.411454, 0.061326, 0), Vector(0.413199, 0.048674, 0), Vector(0.414506, 0.034478, 0), Vector(0.415275, 0.018718, 0), Vector(0.415347, 0.007693, 0), Vector(0.415385, 0.001923, 0)], [4, 1, 1, 1, 1, 1, 1, 1, 1, 1, 1, 1, 1, 1, 1, 1, 4], [0, 0.00000596, 0.000011819, 0.000017578, 0.000023412, 0.000029298, 0.000035408, 0.000041867, 0.000048662, 0.000056186, 0.000064803, 0.000074784, 0.000086088, 0.000098836, 0.00011308, 0.000128845, 0.000146154], False, 3, [1, 1, 1, 1, 1, 1, 1, 1, 1, 1, 1, 1, 1, 1, 1, 1, 1, 1, 1], False), False)
sketch2.addGeometry(Part.BSplineCurve([Vector(0.3, 0.001923, 0), Vector(0.300038, 0.007693, 0), Vector(0.300111, 0.018738, 0), Vector(0.300875, 0.034518, 0), Vector(0.30219, 0.048754, 0), Vector(0.303928, 0.061426, 0), Vector(0.306223, 0.072551, 0), Vector(0.309105, 0.0821, 0), Vector(0.312353, 0.09019, 0), Vector(0.316373, 0.096718, 0), Vector(0.320775, 0.102039, 0), Vector(0.325319, 0.106616, 0), Vector(0.330113, 0.110506, 0), Vector(0.335125, 0.113749, 0), Vector(0.340433, 0.116205, 0), Vector(0.345979, 0.117985, 0), Vector(0.351765, 0.119009, 0), Vector(0.355705, 0.119157, 0), Vector(0.357692, 0.119231, 0)], [4, 1, 1, 1, 1, 1, 1, 1, 1, 1, 1, 1, 1, 1, 1, 1, 4], [0, 0.000017309, 0.000033134, 0.000047378, 0.000060186, 0.000071489, 0.000081413, 0.000090085, 0.000097558, 0.000104306, 0.000110765, 0.000116876, 0.000122794, 0.000128628, 0.000134368, 0.000140227, 0.000146187], False, 3, [1, 1, 1, 1, 1, 1, 1, 1, 1, 1, 1, 1, 1, 1, 1, 1, 1, 1, 1], False), False)
sketch2.addConstraint(Sketcher.Constraint("Block", 3))
sketch2.addConstraint(Sketcher.Constraint("Block", 5))
sketch2.addConstraint(Sketcher.Constraint("Block", 9))
sketch2.addConstraint(Sketcher.Constraint("Block", 10))
sketch2.addConstraint(Sketcher.Constraint("Block", 11))
sketch2.addConstraint(Sketcher.Constraint("Block", 12))
sketch2.addConstraint(Sketcher.Constraint("Block", 14))
sketch2.addConstraint(Sketcher.Constraint("Block", 15))
sketch2.addConstraint(Sketcher.Constraint("Block", 16))
sketch2.addConstraint(Sketcher.Constraint("Block", 17))
sketch2.addConstraint(Sketcher.Constraint("Block", 18))
sketch2.addConstraint(Sketcher.Constraint("Block", 23))
sketch2.addConstraint(Sketcher.Constraint("Block", 25))
sketch2.addConstraint(Sketcher.Constraint("Block", 27))
sketch2.addConstraint(Sketcher.Constraint("Block", 28))
sketch2.addConstraint(Sketcher.Constraint("Block", 29))
sketch2.addConstraint(Sketcher.Constraint("Block", 30))
sketch2.addConstraint(Sketcher.Constraint("Block", 31))
sketch2.addConstraint(Sketcher.Constraint("Block", 32))
sketch2.addConstraint(Sketcher.Constraint("Block", 33))
sketch2.addConstraint(Sketcher.Constraint("Block", 34))
sketch2.addConstraint(Sketcher.Constraint("Block", 35))
sketch2.addConstraint(Sketcher.Constraint("Block", 36))
sketch2.addConstraint(Sketcher.Constraint("Coincident", 0, 2, 1, 1))
sketch2.addConstraint(Sketcher.Constraint("Coincident", 1, 2, 2, 1))
sketch2.addConstraint(Sketcher.Constraint("Coincident", 2, 2, 3, 2))
sketch2.addConstraint(Sketcher.Constraint("Coincident", 3, 1, 4, 1))
sketch2.addConstraint(Sketcher.Constraint("Coincident", 4, 2, 5, 2))
sketch2.addConstraint(Sketcher.Constraint("Coincident", 5, 1, 6, 1))
sketch2.addConstraint(Sketcher.Constraint("Coincident", 6, 2, 0, 1))
sketch2.addConstraint(Sketcher.Constraint("Coincident", 7, 2, 8, 1))
sketch2.addConstraint(Sketcher.Constraint("Coincident", 8, 2, 9, 2))
sketch2.addConstraint(Sketcher.Constraint("Coincident", 12, 1, 13, 1))
sketch2.addConstraint(Sketcher.Constraint("Coincident", 13, 2, 14, 2))
sketch2.addConstraint(Sketcher.Constraint("Coincident", 18, 1, 19, 1))
sketch2.addConstraint(Sketcher.Constraint("Coincident", 19, 2, 7, 1))
sketch2.addConstraint(Sketcher.Constraint("Coincident", 20, 2, 21, 1))
sketch2.addConstraint(Sketcher.Constraint("Coincident", 21, 2, 22, 1))
sketch2.addConstraint(Sketcher.Constraint("Coincident", 22, 2, 23, 2))
sketch2.addConstraint(Sketcher.Constraint("Coincident", 23, 1, 24, 1))
sketch2.addConstraint(Sketcher.Constraint("Coincident", 24, 2, 25, 2))
sketch2.addConstraint(Sketcher.Constraint("Coincident", 25, 1, 26, 1))
sketch2.addConstraint(Sketcher.Constraint("Coincident", 26, 2, 20, 1))
sketch2.addConstraint(Sketcher.Constraint("Horizontal", 0))
sketch2.addConstraint(Sketcher.Constraint("Vertical", 1))
sketch2.addConstraint(Sketcher.Constraint("Horizontal", 2))
sketch2.addConstraint(Sketcher.Constraint("Vertical", 6))
sketch2.addConstraint(Sketcher.Constraint("Vertical", 7))
sketch2.addConstraint(Sketcher.Constraint("Horizontal", 8))
sketch2.addConstraint(Sketcher.Constraint("Horizontal", 19))
sketch2.addConstraint(Sketcher.Constraint("Horizontal", 20))
sketch2.addConstraint(Sketcher.Constraint("Vertical", 21))
sketch2.addConstraint(Sketcher.Constraint("Horizontal", 22))
sketch2.addConstraint(Sketcher.Constraint("Vertical", 26))
sketch2.addConstraint(Sketcher.Constraint("DistanceY", 1, 2, 1, 1, 0.3))
sketch2.addConstraint(Sketcher.Constraint("DistanceY", 21, 2, 21, 1, 0.3))
sketch2.addConstraint(Sketcher.Constraint("DistanceX", 0, 1, 0, 2, 0.038462))
sketch2.addConstraint(Sketcher.Constraint("DistanceX", 20, 1, 20, 2, 0.038462))
sketch2.addConstraint(Sketcher.Constraint("DistanceX", 8, 2, 8, 1, 0.146755))
pad2 = body.newObject("PartDesign::Pad", "Pad001")
pad2.Profile = sketch2
pad2.Length = 0.002
pad2.Reversed = True

doc.recompute()
